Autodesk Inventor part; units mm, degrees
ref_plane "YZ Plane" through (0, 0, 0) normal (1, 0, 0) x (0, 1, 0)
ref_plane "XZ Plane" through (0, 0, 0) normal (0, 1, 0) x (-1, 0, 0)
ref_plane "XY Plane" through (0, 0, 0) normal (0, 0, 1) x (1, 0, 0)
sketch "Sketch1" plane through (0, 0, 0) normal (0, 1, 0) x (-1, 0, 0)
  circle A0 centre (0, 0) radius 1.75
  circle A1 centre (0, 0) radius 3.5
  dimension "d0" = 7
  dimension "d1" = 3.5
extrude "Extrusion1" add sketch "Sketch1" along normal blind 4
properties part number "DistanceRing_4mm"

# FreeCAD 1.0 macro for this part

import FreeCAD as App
import Part
import Sketcher
from FreeCAD import Vector
Q = App.Units.Quantity

doc = App.newDocument("Part")
body = doc.addObject("PartDesign::Body", "Body")

sketch1 = doc.addObject("Sketcher::SketchObject", "Sketch")
body.addObject(sketch1)
sketch1.AttachmentSupport = (doc.XZ_Plane, [""])
sketch1.MapMode = "FlatFace"
sketch1.addGeometry(Part.Circle(Vector(0, 0, 0), Vector(0, 0, 1), 3.5), False)
sketch1.addGeometry(Part.Circle(Vector(0, 0, 0), Vector(0, 0, 1), 1.8), False)
sketch1.addConstraint(Sketcher.Constraint("Coincident", 0, 3, -1, 1))
sketch1.addConstraint(Sketcher.Constraint("Coincident", 1, 3, -1, 1))
sketch1.addConstraint(Sketcher.Constraint("Diameter", 0, Q("7 mm")))
sketch1.addConstraint(Sketcher.Constraint("Diameter", 1, Q("3.5 mm")))
pad1 = doc.addObject("PartDesign::Pad", "Pad")
body.addObject(pad1)
pad1.Profile = sketch1
pad1.Length = 4
pad1.Reversed = True

doc.recompute()
